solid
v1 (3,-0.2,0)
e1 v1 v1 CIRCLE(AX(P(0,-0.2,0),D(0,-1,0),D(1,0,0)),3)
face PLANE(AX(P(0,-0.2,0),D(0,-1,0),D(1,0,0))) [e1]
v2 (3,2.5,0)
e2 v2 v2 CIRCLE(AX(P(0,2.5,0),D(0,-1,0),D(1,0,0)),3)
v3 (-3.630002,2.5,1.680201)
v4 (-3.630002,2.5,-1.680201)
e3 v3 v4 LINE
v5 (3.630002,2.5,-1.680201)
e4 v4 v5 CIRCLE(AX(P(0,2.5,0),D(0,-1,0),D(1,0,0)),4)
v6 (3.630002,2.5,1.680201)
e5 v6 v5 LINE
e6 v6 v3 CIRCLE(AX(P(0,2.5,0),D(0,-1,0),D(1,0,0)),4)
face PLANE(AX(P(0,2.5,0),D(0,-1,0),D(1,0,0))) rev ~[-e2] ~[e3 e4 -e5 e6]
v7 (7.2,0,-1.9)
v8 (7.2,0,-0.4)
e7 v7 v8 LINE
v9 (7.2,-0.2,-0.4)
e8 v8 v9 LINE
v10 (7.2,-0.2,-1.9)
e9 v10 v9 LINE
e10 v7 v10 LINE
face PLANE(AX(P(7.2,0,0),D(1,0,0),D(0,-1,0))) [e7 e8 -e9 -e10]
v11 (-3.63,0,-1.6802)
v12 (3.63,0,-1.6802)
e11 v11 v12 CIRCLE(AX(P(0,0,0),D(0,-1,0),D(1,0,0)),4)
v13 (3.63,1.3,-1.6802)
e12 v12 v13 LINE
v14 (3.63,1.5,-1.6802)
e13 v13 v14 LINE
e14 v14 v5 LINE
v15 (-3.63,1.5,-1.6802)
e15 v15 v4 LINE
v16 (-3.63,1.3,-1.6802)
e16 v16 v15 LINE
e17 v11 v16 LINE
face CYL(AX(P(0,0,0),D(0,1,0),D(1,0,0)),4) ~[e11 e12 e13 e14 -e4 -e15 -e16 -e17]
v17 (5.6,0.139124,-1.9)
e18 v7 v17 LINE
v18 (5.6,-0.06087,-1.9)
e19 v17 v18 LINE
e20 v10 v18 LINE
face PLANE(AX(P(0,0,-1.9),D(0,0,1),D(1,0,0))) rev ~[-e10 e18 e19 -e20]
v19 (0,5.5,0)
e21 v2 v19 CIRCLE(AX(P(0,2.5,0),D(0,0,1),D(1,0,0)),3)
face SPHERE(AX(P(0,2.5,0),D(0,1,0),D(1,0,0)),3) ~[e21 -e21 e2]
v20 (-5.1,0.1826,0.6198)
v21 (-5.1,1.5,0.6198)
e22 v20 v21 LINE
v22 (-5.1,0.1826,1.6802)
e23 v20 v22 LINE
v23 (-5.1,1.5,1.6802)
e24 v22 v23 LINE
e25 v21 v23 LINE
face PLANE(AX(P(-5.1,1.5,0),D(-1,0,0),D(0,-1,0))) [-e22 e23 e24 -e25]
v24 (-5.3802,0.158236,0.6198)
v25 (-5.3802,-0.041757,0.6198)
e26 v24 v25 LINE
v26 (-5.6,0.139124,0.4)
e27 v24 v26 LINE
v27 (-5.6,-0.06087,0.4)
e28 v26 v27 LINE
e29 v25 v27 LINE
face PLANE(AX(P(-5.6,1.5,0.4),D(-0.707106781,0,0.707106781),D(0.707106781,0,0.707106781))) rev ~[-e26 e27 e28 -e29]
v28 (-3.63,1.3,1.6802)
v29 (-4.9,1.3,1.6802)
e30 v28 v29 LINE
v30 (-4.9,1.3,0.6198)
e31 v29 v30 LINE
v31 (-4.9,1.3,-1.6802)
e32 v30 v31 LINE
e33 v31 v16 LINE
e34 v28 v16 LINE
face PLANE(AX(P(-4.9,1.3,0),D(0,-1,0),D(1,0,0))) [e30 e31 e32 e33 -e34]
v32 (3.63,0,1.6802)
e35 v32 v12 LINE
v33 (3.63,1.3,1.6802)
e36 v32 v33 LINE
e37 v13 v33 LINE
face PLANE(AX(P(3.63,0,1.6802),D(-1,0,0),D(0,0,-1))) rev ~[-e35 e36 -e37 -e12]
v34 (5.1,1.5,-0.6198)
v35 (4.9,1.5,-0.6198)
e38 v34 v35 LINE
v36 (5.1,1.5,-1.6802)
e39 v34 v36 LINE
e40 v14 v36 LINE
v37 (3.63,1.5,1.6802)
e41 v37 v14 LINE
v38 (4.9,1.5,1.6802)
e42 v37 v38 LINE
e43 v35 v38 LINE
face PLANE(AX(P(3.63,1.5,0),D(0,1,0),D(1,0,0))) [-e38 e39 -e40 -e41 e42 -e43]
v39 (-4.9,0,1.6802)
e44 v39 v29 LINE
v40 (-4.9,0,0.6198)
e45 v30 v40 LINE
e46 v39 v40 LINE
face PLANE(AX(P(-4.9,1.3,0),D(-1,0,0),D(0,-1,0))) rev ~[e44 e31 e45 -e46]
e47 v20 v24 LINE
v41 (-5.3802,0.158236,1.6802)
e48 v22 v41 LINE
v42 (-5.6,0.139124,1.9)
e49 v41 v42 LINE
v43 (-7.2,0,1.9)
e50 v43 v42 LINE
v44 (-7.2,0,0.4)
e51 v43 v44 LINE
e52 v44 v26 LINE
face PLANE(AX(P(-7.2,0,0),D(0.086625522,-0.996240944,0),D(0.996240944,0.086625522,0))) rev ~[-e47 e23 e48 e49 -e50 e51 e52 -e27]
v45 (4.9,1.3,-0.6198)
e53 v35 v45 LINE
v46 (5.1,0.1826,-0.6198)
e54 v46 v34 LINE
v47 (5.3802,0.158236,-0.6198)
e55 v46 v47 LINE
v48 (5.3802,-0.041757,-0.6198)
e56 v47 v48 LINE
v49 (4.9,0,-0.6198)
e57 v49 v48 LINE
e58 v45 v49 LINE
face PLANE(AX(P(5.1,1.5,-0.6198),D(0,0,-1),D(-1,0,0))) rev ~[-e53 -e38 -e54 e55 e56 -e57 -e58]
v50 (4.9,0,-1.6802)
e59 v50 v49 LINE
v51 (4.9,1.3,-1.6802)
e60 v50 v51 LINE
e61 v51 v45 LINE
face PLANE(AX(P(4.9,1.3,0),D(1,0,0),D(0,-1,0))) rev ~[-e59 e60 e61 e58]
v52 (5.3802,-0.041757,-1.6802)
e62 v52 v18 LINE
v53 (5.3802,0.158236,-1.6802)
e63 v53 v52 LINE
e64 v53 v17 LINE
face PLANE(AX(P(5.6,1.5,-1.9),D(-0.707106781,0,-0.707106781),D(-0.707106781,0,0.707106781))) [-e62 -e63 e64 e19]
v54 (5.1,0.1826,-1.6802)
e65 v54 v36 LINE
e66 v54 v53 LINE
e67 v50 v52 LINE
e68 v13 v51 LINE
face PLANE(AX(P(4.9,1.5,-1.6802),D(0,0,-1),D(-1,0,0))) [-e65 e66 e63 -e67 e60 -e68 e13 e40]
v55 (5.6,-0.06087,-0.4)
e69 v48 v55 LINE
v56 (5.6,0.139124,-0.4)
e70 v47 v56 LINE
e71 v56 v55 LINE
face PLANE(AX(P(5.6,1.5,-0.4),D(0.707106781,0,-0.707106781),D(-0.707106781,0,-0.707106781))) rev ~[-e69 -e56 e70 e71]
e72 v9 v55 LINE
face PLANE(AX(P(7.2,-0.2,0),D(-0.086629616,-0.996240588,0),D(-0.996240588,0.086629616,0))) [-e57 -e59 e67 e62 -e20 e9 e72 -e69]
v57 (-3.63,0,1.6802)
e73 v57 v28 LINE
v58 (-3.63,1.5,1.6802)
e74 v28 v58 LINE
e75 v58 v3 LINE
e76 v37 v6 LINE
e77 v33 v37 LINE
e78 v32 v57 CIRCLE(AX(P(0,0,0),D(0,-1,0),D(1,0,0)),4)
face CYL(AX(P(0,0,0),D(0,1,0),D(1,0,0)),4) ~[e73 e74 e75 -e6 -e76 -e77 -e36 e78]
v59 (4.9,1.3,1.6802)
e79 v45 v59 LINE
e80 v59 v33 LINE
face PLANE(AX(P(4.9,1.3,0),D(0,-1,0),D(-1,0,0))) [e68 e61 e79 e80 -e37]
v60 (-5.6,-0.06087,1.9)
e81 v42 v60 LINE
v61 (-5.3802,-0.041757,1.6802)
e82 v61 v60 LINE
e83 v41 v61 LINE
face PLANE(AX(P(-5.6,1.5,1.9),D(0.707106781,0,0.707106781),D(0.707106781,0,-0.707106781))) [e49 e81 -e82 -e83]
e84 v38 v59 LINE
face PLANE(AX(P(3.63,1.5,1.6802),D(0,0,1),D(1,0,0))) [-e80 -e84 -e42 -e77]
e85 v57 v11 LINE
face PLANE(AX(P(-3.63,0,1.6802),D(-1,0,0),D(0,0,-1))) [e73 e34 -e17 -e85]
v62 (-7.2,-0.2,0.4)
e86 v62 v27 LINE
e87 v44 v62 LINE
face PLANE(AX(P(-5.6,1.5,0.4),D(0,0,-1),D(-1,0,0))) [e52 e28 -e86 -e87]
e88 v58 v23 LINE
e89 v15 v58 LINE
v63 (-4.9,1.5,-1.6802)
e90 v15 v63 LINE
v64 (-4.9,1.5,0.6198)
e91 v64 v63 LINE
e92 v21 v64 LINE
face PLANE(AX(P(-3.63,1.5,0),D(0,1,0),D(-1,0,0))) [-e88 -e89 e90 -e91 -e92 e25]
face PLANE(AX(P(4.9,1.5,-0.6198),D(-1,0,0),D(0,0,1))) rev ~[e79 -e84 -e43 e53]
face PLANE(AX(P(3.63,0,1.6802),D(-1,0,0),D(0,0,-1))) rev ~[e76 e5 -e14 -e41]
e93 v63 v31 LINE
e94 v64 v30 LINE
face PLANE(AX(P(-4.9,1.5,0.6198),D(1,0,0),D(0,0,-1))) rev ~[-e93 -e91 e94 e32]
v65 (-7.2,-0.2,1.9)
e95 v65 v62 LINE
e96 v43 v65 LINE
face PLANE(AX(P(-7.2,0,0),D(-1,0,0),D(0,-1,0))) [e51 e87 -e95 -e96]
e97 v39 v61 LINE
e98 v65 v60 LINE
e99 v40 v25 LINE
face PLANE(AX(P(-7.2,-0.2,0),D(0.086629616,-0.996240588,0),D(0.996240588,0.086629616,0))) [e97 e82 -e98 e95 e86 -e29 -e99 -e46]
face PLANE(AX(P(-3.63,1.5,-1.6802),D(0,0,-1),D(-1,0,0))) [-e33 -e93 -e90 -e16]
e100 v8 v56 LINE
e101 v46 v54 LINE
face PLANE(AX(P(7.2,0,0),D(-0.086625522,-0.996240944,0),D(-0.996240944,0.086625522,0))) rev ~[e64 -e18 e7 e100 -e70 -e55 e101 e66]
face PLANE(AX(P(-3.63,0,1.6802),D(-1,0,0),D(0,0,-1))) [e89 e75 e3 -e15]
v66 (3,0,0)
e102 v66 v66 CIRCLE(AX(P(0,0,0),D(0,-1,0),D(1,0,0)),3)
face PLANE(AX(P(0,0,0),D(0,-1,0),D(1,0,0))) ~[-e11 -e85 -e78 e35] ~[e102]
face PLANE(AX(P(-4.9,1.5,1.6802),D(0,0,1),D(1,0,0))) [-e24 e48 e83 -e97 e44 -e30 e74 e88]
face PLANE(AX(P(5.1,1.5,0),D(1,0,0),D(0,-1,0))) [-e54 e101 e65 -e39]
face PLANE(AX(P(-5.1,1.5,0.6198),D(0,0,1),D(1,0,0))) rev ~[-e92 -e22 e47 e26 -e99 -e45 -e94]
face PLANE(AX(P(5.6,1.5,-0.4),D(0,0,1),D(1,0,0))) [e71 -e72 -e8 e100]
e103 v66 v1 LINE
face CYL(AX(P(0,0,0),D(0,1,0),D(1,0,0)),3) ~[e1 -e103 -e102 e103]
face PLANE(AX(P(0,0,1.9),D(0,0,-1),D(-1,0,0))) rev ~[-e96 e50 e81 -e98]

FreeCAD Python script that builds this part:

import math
import FreeCAD as App
import Part
import Sketcher
from FreeCAD import Vector
Q = App.Units.Quantity

doc = App.newDocument("Part")
params = doc.addObject("Spreadsheet::Sheet", "Params")
for row, (alias, value) in enumerate([
    ("sketch1_radius", "3 mm"),
    ("sketch1_width", "4 mm"),
    ("sketch1_height", "2.5 mm"),
    ("revolution_angle", "360 deg"),
    ("sketch2_radius", "4 mm"),
    ("sketch3_diameter", "6 mm"),
    ("pad1_length", "0.2 mm"),
    ("sketch4_height", "0.2 mm"),
    ("sketch4_width", "1.47 mm"),
    ("pad2_length", "3.8 mm"),
    ("sketch5_width", "1.6 mm"),
    ("sketch5_height", "2.3 mm"),
    ("sketch5_width2", "1.97 mm"),
    ("sketch5_width3", "1.27 mm"),
], start=1):
    params.set(f"A{row}", alias)
    params.set(f"B{row}", "=" + value)
    params.setAlias(f"B{row}", alias)

body = doc.addObject("PartDesign::Body", "Body")

# Sketch on XY plane
sketch1 = body.newObject("Sketcher::SketchObject", "Sketch")
sketch1.AttachmentSupport = (doc.getObject("XY_Plane"), [""])
sketch1.MapMode = "FlatFace"
sketch1.addGeometry(Part.LineSegment(Vector(0, 0, 0), Vector(4, 0, 0)), False)
sketch1.addGeometry(Part.LineSegment(Vector(4, 0, 0), Vector(4, 2.5, 0)), False)
sketch1.addGeometry(Part.LineSegment(Vector(4, 2.5, 0), Vector(3, 2.5, 0)), False)
sketch1.addGeometry(Part.ArcOfCircle(Part.Circle(Vector(0, 2.5, 0), Vector(0, 0, 1), 3), math.radians(0), math.radians(90)), False)
sketch1.addGeometry(Part.LineSegment(Vector(0, 5.5, 0), Vector(0, 0, 0)), False)
sketch1.addConstraint(Sketcher.Constraint("Coincident", 0, 2, 1, 1))
sketch1.addConstraint(Sketcher.Constraint("Coincident", 1, 2, 2, 1))
sketch1.addConstraint(Sketcher.Constraint("Coincident", 2, 2, 3, 1))
sketch1.addConstraint(Sketcher.Constraint("Coincident", 3, 2, 4, 1))
sketch1.addConstraint(Sketcher.Constraint("Coincident", 4, 2, 0, 1))
sketch1.addConstraint(Sketcher.Constraint("Horizontal", 0))
sketch1.addConstraint(Sketcher.Constraint("Vertical", 1))
sketch1.addConstraint(Sketcher.Constraint("Horizontal", 2))
sketch1.addConstraint(Sketcher.Constraint("Vertical", 4))
sketch1.addConstraint(Sketcher.Constraint("Coincident", 4, 2, -1, 1))
sketch1.addConstraint(Sketcher.Constraint("PointOnObject", 3, 3, -2))
sketch1.addConstraint(Sketcher.Constraint("Horizontal", 3, 3, 1, 2))
sketch1.addConstraint(Sketcher.Constraint("Radius", 3, Q("3 mm")))
sketch1.addConstraint(Sketcher.Constraint("DistanceX", 0, 1, 0, 2, Q("4 mm")))
sketch1.addConstraint(Sketcher.Constraint("DistanceY", 1, 1, 1, 2, Q("2.5 mm")))
sketch1.setExpression("Constraints[12]", "Params.sketch1_radius")
sketch1.setExpression("Constraints[13]", "Params.sketch1_width")
sketch1.setExpression("Constraints[14]", "Params.sketch1_height")
revolution = body.newObject("PartDesign::Revolution", "Revolution")
revolution.Profile = sketch1
revolution.ReferenceAxis = (sketch1, ["V_Axis"])
revolution.setExpression("Angle", "Params.revolution_angle")

# Sketch on XZ plane
sketch2 = body.newObject("Sketcher::SketchObject", "Sketch001")
sketch2.AttachmentSupport = (doc.getObject("XZ_Plane"), [""])
sketch2.MapMode = "FlatFace"
sketch2.addGeometry(Part.ArcOfCircle(Part.Circle(Vector(0, 0, 0), Vector(0, 0, 1), 4), math.radians(-24.837767), math.radians(24.837767)), False)
sketch2.addGeometry(Part.LineSegment(Vector(3.63, -1.6802, 0), Vector(3.63, 1.6802, 0)), False)
sketch2.addGeometry(Part.LineSegment(Vector(-3.63, -1.6802, 0), Vector(-3.63, 1.6802, 0)), False)
sketch2.addGeometry(Part.ArcOfCircle(Part.Circle(Vector(0, 0, 0), Vector(0, 0, 1), 4), math.radians(155.162233), math.radians(204.837767)), False)
sketch2.addConstraint(Sketcher.Constraint("Coincident", 0, 1, 1, 1))
sketch2.addConstraint(Sketcher.Constraint("Coincident", 1, 2, 0, 2))
sketch2.addConstraint(Sketcher.Constraint("Coincident", 2, 1, 3, 2))
sketch2.addConstraint(Sketcher.Constraint("Coincident", 3, 1, 2, 2))
sketch2.addConstraint(Sketcher.Constraint("Vertical", 1))
sketch2.addConstraint(Sketcher.Constraint("Vertical", 2))
sketch2.addConstraint(Sketcher.Constraint("Coincident", 0, 3, -1, 1))
sketch2.addConstraint(Sketcher.Constraint("Coincident", 3, 3, -1, 1))
sketch2.addConstraint(Sketcher.Constraint("Equal", 0, 3))
sketch2.addConstraint(Sketcher.Constraint("Horizontal", 0, 1, 2, 1))
sketch2.addConstraint(Sketcher.Constraint("Radius", 0, Q("4 mm")))
sketch2.addConstraint(Sketcher.Constraint("DistanceX", -1, 1, 0, 1, Q("3.63 mm")))
sketch2.setExpression("Constraints[10]", "Params.sketch2_radius")
pocket1 = body.newObject("PartDesign::Pocket", "Pocket")
pocket1.Profile = sketch2
pocket1.Type = "ThroughAll"

# Sketch on XZ plane
sketch3 = body.newObject("Sketcher::SketchObject", "Sketch002")
sketch3.AttachmentSupport = (doc.getObject("XZ_Plane"), [""])
sketch3.MapMode = "FlatFace"
sketch3.addGeometry(Part.Circle(Vector(0, 0, 0), Vector(0, 0, 1), 3), False)
sketch3.addConstraint(Sketcher.Constraint("Coincident", 0, 3, -1, 1))
sketch3.addConstraint(Sketcher.Constraint("Diameter", 0, Q("6 mm")))
sketch3.setExpression("Constraints[1]", "Params.sketch3_diameter")
pad1 = body.newObject("PartDesign::Pad", "Pad")
pad1.Profile = sketch3
pad1.setExpression("Length", "Params.pad1_length")

# Sketch on XY plane
sketch4 = body.newObject("Sketcher::SketchObject", "Sketch003")
sketch4.AttachmentSupport = (doc.getObject("XY_Plane"), [""])
sketch4.MapMode = "FlatFace"
sketch4.addGeometry(Part.LineSegment(Vector(3.63, 1.5, 0), Vector(3.63, 1.3, 0)), False)
sketch4.addGeometry(Part.LineSegment(Vector(3.63, 1.3, 0), Vector(4.9, 1.3, 0)), False)
sketch4.addGeometry(Part.LineSegment(Vector(4.9, 1.3, 0), Vector(4.9, 0, 0)), False)
sketch4.addGeometry(Part.LineSegment(Vector(4.9, 0, 0), Vector(7.2, -0.2, 0)), False)
sketch4.addGeometry(Part.LineSegment(Vector(7.2, -0.2, 0), Vector(7.2, 0, 0)), False)
sketch4.addGeometry(Part.LineSegment(Vector(7.2, 0, 0), Vector(5.1, 0.1826, 0)), False)
sketch4.addGeometry(Part.LineSegment(Vector(5.1, 0.1826, 0), Vector(5.1, 1.5, 0)), False)
sketch4.addGeometry(Part.LineSegment(Vector(5.1, 1.5, 0), Vector(3.63, 1.5, 0)), False)
sketch4.addConstraint(Sketcher.Constraint("Coincident", 0, 2, 1, 1))
sketch4.addConstraint(Sketcher.Constraint("Coincident", 1, 2, 2, 1))
sketch4.addConstraint(Sketcher.Constraint("Coincident", 2, 2, 3, 1))
sketch4.addConstraint(Sketcher.Constraint("Coincident", 3, 2, 4, 1))
sketch4.addConstraint(Sketcher.Constraint("Coincident", 4, 2, 5, 1))
sketch4.addConstraint(Sketcher.Constraint("Coincident", 5, 2, 6, 1))
sketch4.addConstraint(Sketcher.Constraint("Coincident", 6, 2, 7, 1))
sketch4.addConstraint(Sketcher.Constraint("Coincident", 7, 2, 0, 1))
sketch4.addConstraint(Sketcher.Constraint("Vertical", 0))
sketch4.addConstraint(Sketcher.Constraint("Horizontal", 1))
sketch4.addConstraint(Sketcher.Constraint("Vertical", 2))
sketch4.addConstraint(Sketcher.Constraint("Vertical", 4))
sketch4.addConstraint(Sketcher.Constraint("Vertical", 6))
sketch4.addConstraint(Sketcher.Constraint("Horizontal", 7))
sketch4.addConstraint(Sketcher.Constraint("PointOnObject", 2, 2, -1))
sketch4.addConstraint(Sketcher.Constraint("PointOnObject", 4, 2, -1))
sketch4.addConstraint(Sketcher.Constraint("Parallel", 3, 5))
sketch4.addConstraint(Sketcher.Constraint("Equal", 0, 4))
sketch4.addConstraint(Sketcher.Constraint("DistanceY", 0, 2, 0, 1, Q("0.2 mm")))
sketch4.addConstraint(Sketcher.Constraint("DistanceX", 7, 2, 7, 1, Q("1.47 mm")))
sketch4.addConstraint(Sketcher.Constraint("DistanceY", -1, 1, 6, 2, Q("1.5 mm")))
sketch4.addConstraint(Sketcher.Constraint("DistanceX", 2, 2, 5, 2, Q("0.2 mm")))
sketch4.addConstraint(Sketcher.Constraint("DistanceX", 5, 2, 4, 2, Q("2.1 mm")))
sketch4.addConstraint(Sketcher.Constraint("DistanceX", -1, 1, 1, 2, Q("4.9 mm")))
sketch4.setExpression("Constraints[18]", "Params.sketch4_height")
sketch4.setExpression("Constraints[19]", "Params.sketch4_width")
pad2 = body.newObject("PartDesign::Pad", "Pad001")
pad2.Profile = sketch4
pad2.setExpression("Length", "Params.pad2_length")
pad2.Midplane = True

# Sketch on XZ plane
sketch5 = body.newObject("Sketcher::SketchObject", "Sketch004")
sketch5.AttachmentSupport = (doc.getObject("XZ_Plane"), [""])
sketch5.MapMode = "FlatFace"
sketch5.AttachmentOffset = App.Placement(Vector(0, 0, -1.5), App.Rotation())
sketch5.addGeometry(Part.LineSegment(Vector(3.63, -1.9, 0), Vector(3.63, -1.6802, 0)), False)
sketch5.addGeometry(Part.LineSegment(Vector(3.63, -1.6802, 0), Vector(5.3802, -1.6802, 0)), False)
sketch5.addGeometry(Part.LineSegment(Vector(5.3802, -1.6802, 0), Vector(5.6, -1.9, 0)), False)
sketch5.addGeometry(Part.LineSegment(Vector(5.6, -1.9, 0), Vector(3.63, -1.9, 0)), False)
sketch5.addGeometry(Part.LineSegment(Vector(4.9, 1.6802, 0), Vector(3.63, 1.6802, 0)), False)
sketch5.addGeometry(Part.LineSegment(Vector(3.63, 1.6802, 0), Vector(3.63, 1.9, 0)), False)
sketch5.addGeometry(Part.LineSegment(Vector(3.63, 1.9, 0), Vector(7.2, 1.9, 0)), False)
sketch5.addGeometry(Part.LineSegment(Vector(7.2, 1.9, 0), Vector(7.2, -0.4, 0)), False)
sketch5.addGeometry(Part.LineSegment(Vector(7.2, -0.4, 0), Vector(5.6, -0.4, 0)), False)
sketch5.addGeometry(Part.LineSegment(Vector(5.6, -0.4, 0), Vector(5.3802, -0.6198, 0)), False)
sketch5.addGeometry(Part.LineSegment(Vector(5.3802, -0.6198, 0), Vector(4.9, -0.6198, 0)), False)
sketch5.addGeometry(Part.LineSegment(Vector(4.9, -0.6198, 0), Vector(4.9, 1.6802, 0)), False)
sketch5.addConstraint(Sketcher.Constraint("Coincident", 0, 2, 1, 1))
sketch5.addConstraint(Sketcher.Constraint("Coincident", 1, 2, 2, 1))
sketch5.addConstraint(Sketcher.Constraint("Coincident", 2, 2, 3, 1))
sketch5.addConstraint(Sketcher.Constraint("Coincident", 3, 2, 0, 1))
sketch5.addConstraint(Sketcher.Constraint("Coincident", 4, 2, 5, 1))
sketch5.addConstraint(Sketcher.Constraint("Coincident", 5, 2, 6, 1))
sketch5.addConstraint(Sketcher.Constraint("Coincident", 6, 2, 7, 1))
sketch5.addConstraint(Sketcher.Constraint("Coincident", 7, 2, 8, 1))
sketch5.addConstraint(Sketcher.Constraint("Coincident", 8, 2, 9, 1))
sketch5.addConstraint(Sketcher.Constraint("Coincident", 9, 2, 10, 1))
sketch5.addConstraint(Sketcher.Constraint("Coincident", 10, 2, 11, 1))
sketch5.addConstraint(Sketcher.Constraint("Coincident", 11, 2, 4, 1))
sketch5.addConstraint(Sketcher.Constraint("Vertical", 0))
sketch5.addConstraint(Sketcher.Constraint("Horizontal", 1))
sketch5.addConstraint(Sketcher.Constraint("Horizontal", 3))
sketch5.addConstraint(Sketcher.Constraint("Horizontal", 4))
sketch5.addConstraint(Sketcher.Constraint("Vertical", 5))
sketch5.addConstraint(Sketcher.Constraint("Horizontal", 6))
sketch5.addConstraint(Sketcher.Constraint("Vertical", 7))
sketch5.addConstraint(Sketcher.Constraint("Horizontal", 8))
sketch5.addConstraint(Sketcher.Constraint("Horizontal", 10))
sketch5.addConstraint(Sketcher.Constraint("Vertical", 11))
sketch5.addConstraint(Sketcher.Constraint("Symmetric", 0, 2, 4, 2, -1))
sketch5.addConstraint(Sketcher.Constraint("Perpendicular", 2, 9))
sketch5.addConstraint(Sketcher.Constraint("Vertical", 2, 2, 8, 2))
sketch5.addConstraint(Sketcher.Constraint("Vertical", 1, 2, 9, 2))
sketch5.addConstraint(Sketcher.Constraint("Equal", 0, 5))
sketch5.addConstraint(Sketcher.Constraint("Equal", 7, 11))
sketch5.addConstraint(Sketcher.Constraint("DistanceX", 8, 2, 8, 1, Q("1.6 mm")))
sketch5.addConstraint(Sketcher.Constraint("DistanceY", 2, 2, 7, 2, Q("1.5 mm")))
sketch5.addConstraint(Sketcher.Constraint("DistanceY", 7, 2, 7, 1, Q("2.3 mm")))
sketch5.addConstraint(Sketcher.Constraint("DistanceX", 3, 2, 3, 1, Q("1.97 mm")))
sketch5.addConstraint(Sketcher.Constraint("DistanceX", 4, 2, 4, 1, Q("1.27 mm")))
sketch5.addConstraint(Sketcher.Constraint("DistanceX", -1, 1, 2, 2, Q("5.6 mm")))
sketch5.addConstraint(Sketcher.Constraint("DistanceX", 1, 1, 1, 2, Q("1.7502 mm")))
sketch5.setExpression("Constraints[28]", "Params.sketch5_width")
sketch5.setExpression("Constraints[30]", "Params.sketch5_height")
sketch5.setExpression("Constraints[31]", "Params.sketch5_width2")
sketch5.setExpression("Constraints[32]", "Params.sketch5_width3")
pocket2 = body.newObject("PartDesign::Pocket", "Pocket001")
pocket2.Profile = sketch5
pocket2.Type = "ThroughAll"
pocket2.Reversed = True
doc.recompute()

polarpattern = body.newObject("PartDesign::PolarPattern", "PolarPattern")
polarpattern.Originals = [pad2, pocket2]
polarpattern.Axis = (doc.getObject("Y_Axis"), [""])
polarpattern.Angle = 360
polarpattern.Occurrences = 2
body.Tip = polarpattern

doc.recompute()
